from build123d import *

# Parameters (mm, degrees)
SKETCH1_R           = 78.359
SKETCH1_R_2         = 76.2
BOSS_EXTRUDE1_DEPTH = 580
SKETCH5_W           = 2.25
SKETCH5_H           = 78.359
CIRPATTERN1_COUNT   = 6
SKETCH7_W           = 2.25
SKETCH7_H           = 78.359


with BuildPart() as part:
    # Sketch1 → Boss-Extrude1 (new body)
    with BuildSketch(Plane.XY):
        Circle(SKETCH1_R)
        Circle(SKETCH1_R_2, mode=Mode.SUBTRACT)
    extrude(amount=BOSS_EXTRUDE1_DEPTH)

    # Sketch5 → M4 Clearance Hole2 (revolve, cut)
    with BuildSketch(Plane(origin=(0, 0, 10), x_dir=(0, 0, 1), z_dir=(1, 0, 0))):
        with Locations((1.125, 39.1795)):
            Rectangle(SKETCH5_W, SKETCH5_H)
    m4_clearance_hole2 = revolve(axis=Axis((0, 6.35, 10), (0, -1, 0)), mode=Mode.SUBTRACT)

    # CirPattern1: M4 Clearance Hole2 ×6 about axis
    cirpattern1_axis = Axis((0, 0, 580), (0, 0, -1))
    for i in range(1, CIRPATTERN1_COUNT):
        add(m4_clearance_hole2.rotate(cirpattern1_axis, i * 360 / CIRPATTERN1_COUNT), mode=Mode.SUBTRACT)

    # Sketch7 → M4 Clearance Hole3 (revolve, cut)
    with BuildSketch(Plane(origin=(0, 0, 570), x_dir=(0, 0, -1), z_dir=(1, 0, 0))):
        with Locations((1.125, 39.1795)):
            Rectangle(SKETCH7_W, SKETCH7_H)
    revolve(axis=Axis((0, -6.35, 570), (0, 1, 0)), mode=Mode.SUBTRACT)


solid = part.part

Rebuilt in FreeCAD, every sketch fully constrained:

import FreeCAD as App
import Part
import Sketcher

V = App.Vector
Q = App.Units.Quantity

doc = App.newDocument("Part")
body = doc.addObject("PartDesign::Body", "Body")

# Sketch on XY plane
sketch1 = doc.addObject("Sketcher::SketchObject", "Sketch")
body.addObject(sketch1)
sketch1.AttachmentSupport = (doc.XY_Plane, [""])
sketch1.MapMode = "FlatFace"
sketch1.addGeometry(Part.Circle(V(0, 0, 0), V(0, 0, 1), 78), False)
sketch1.addGeometry(Part.Circle(V(0, 0, 0), V(0, 0, 1), 76), False)
sketch1.addConstraint(Sketcher.Constraint("Coincident", 0, 3, -1, 1))
sketch1.addConstraint(Sketcher.Constraint("Coincident", 1, 3, -1, 1))
sketch1.addConstraint(Sketcher.Constraint("Diameter", 1, Q("6 in")))
sketch1.addConstraint(Sketcher.Constraint("Diameter", 0, Q("6.17 in")))
pad1 = doc.addObject("PartDesign::Pad", "Pad")
body.addObject(pad1)
pad1.Profile = sketch1
pad1.Length = 580

# Sketch on YZ plane
sketch2 = doc.addObject("Sketcher::SketchObject", "Sketch001")
body.addObject(sketch2)
sketch2.AttachmentSupport = (doc.YZ_Plane, [""])
sketch2.MapMode = "FlatFace"
sketch2.addGeometry(Part.LineSegment(V(-78.4, 10, 0), V(0, 10, 0)), False)
sketch2.addGeometry(Part.LineSegment(V(0, 10, 0), V(0, 12.2, 0)), False)
sketch2.addGeometry(Part.LineSegment(V(0, 12.2, 0), V(-78.4, 12.2, 0)), False)
sketch2.addGeometry(Part.LineSegment(V(-78.4, 12.2, 0), V(-78.4, 10, 0)), False)
sketch2.addGeometry(Part.LineSegment(V(0, 10, 0), V(-78.4, 10, 0)), True)  # axis
sketch2.addConstraint(Sketcher.Constraint("Coincident", 0, 2, 1, 1))
sketch2.addConstraint(Sketcher.Constraint("Coincident", 1, 2, 2, 1))
sketch2.addConstraint(Sketcher.Constraint("Coincident", 2, 2, 3, 1))
sketch2.addConstraint(Sketcher.Constraint("Coincident", 3, 2, 0, 1))
sketch2.addConstraint(Sketcher.Constraint("Horizontal", 0))
sketch2.addConstraint(Sketcher.Constraint("Vertical", 1))
sketch2.addConstraint(Sketcher.Constraint("Horizontal", 2))
sketch2.addConstraint(Sketcher.Constraint("Vertical", 3))
sketch2.addConstraint(Sketcher.Constraint("Horizontal", 4))
sketch2.addConstraint(Sketcher.Constraint("Coincident", 4, 1, 0, 2))
sketch2.addConstraint(Sketcher.Constraint("PointOnObject", 0, 2, -2))
sketch2.addConstraint(Sketcher.Constraint("Vertical", 2, 2, 4, 2))
sketch2.addConstraint(Sketcher.Constraint("DistanceX", 0, 1, 0, 2, Q("3.085 in")))
sketch2.addConstraint(Sketcher.Constraint("DistanceY", 1, 1, 1, 2, Q("2.25 mm")))
sketch2.addConstraint(Sketcher.Constraint("DistanceY", -1, 1, 0, 2, Q("10 mm")))
groove = doc.addObject("PartDesign::Groove", "Groove")
body.addObject(groove)
groove.Profile = sketch2
groove.ReferenceAxis = (sketch2, ["Axis0"])
groove.Angle = 360
doc.recompute()

polarpattern = doc.addObject("PartDesign::PolarPattern", "PolarPattern")
body.addObject(polarpattern)
polarpattern.Originals = [groove]
polarpattern.Axis = (doc.Z_Axis, [""])
polarpattern.Angle = 360
polarpattern.Occurrences = 6
body.Tip = polarpattern

# Sketch on YZ plane
sketch3 = doc.addObject("Sketcher::SketchObject", "Sketch002")
body.addObject(sketch3)
sketch3.AttachmentSupport = (doc.YZ_Plane, [""])
sketch3.MapMode = "FlatFace"
sketch3.addGeometry(Part.LineSegment(V(78.4, 570, 0), V(0, 570, 0)), False)
sketch3.addGeometry(Part.LineSegment(V(0, 570, 0), V(0, 567.8, 0)), False)
sketch3.addGeometry(Part.LineSegment(V(0, 567.8, 0), V(78.4, 567.8, 0)), False)
sketch3.addGeometry(Part.LineSegment(V(78.4, 567.8, 0), V(78.4, 570, 0)), False)
sketch3.addGeometry(Part.LineSegment(V(0, 570, 0), V(78.4, 570, 0)), True)  # axis
sketch3.addConstraint(Sketcher.Constraint("Coincident", 0, 2, 1, 1))
sketch3.addConstraint(Sketcher.Constraint("Coincident", 1, 2, 2, 1))
sketch3.addConstraint(Sketcher.Constraint("Coincident", 2, 2, 3, 1))
sketch3.addConstraint(Sketcher.Constraint("Coincident", 3, 2, 0, 1))
sketch3.addConstraint(Sketcher.Constraint("Horizontal", 0))
sketch3.addConstraint(Sketcher.Constraint("Vertical", 1))
sketch3.addConstraint(Sketcher.Constraint("Horizontal", 2))
sketch3.addConstraint(Sketcher.Constraint("Vertical", 3))
sketch3.addConstraint(Sketcher.Constraint("Horizontal", 4))
sketch3.addConstraint(Sketcher.Constraint("Coincident", 4, 1, 0, 2))
sketch3.addConstraint(Sketcher.Constraint("PointOnObject", 0, 2, -2))
sketch3.addConstraint(Sketcher.Constraint("Vertical", 2, 2, 4, 2))
sketch3.addConstraint(Sketcher.Constraint("DistanceX", 0, 2, 0, 1, Q("3.085 in")))
sketch3.addConstraint(Sketcher.Constraint("DistanceY", 1, 2, 1, 1, Q("2.25 mm")))
sketch3.addConstraint(Sketcher.Constraint("DistanceY", -1, 1, 0, 2, Q("570 mm")))
groove2 = doc.addObject("PartDesign::Groove", "Groove001")
body.addObject(groove2)
groove2.Profile = sketch3
groove2.ReferenceAxis = (sketch3, ["Axis0"])
groove2.Angle = 360

doc.recompute()
